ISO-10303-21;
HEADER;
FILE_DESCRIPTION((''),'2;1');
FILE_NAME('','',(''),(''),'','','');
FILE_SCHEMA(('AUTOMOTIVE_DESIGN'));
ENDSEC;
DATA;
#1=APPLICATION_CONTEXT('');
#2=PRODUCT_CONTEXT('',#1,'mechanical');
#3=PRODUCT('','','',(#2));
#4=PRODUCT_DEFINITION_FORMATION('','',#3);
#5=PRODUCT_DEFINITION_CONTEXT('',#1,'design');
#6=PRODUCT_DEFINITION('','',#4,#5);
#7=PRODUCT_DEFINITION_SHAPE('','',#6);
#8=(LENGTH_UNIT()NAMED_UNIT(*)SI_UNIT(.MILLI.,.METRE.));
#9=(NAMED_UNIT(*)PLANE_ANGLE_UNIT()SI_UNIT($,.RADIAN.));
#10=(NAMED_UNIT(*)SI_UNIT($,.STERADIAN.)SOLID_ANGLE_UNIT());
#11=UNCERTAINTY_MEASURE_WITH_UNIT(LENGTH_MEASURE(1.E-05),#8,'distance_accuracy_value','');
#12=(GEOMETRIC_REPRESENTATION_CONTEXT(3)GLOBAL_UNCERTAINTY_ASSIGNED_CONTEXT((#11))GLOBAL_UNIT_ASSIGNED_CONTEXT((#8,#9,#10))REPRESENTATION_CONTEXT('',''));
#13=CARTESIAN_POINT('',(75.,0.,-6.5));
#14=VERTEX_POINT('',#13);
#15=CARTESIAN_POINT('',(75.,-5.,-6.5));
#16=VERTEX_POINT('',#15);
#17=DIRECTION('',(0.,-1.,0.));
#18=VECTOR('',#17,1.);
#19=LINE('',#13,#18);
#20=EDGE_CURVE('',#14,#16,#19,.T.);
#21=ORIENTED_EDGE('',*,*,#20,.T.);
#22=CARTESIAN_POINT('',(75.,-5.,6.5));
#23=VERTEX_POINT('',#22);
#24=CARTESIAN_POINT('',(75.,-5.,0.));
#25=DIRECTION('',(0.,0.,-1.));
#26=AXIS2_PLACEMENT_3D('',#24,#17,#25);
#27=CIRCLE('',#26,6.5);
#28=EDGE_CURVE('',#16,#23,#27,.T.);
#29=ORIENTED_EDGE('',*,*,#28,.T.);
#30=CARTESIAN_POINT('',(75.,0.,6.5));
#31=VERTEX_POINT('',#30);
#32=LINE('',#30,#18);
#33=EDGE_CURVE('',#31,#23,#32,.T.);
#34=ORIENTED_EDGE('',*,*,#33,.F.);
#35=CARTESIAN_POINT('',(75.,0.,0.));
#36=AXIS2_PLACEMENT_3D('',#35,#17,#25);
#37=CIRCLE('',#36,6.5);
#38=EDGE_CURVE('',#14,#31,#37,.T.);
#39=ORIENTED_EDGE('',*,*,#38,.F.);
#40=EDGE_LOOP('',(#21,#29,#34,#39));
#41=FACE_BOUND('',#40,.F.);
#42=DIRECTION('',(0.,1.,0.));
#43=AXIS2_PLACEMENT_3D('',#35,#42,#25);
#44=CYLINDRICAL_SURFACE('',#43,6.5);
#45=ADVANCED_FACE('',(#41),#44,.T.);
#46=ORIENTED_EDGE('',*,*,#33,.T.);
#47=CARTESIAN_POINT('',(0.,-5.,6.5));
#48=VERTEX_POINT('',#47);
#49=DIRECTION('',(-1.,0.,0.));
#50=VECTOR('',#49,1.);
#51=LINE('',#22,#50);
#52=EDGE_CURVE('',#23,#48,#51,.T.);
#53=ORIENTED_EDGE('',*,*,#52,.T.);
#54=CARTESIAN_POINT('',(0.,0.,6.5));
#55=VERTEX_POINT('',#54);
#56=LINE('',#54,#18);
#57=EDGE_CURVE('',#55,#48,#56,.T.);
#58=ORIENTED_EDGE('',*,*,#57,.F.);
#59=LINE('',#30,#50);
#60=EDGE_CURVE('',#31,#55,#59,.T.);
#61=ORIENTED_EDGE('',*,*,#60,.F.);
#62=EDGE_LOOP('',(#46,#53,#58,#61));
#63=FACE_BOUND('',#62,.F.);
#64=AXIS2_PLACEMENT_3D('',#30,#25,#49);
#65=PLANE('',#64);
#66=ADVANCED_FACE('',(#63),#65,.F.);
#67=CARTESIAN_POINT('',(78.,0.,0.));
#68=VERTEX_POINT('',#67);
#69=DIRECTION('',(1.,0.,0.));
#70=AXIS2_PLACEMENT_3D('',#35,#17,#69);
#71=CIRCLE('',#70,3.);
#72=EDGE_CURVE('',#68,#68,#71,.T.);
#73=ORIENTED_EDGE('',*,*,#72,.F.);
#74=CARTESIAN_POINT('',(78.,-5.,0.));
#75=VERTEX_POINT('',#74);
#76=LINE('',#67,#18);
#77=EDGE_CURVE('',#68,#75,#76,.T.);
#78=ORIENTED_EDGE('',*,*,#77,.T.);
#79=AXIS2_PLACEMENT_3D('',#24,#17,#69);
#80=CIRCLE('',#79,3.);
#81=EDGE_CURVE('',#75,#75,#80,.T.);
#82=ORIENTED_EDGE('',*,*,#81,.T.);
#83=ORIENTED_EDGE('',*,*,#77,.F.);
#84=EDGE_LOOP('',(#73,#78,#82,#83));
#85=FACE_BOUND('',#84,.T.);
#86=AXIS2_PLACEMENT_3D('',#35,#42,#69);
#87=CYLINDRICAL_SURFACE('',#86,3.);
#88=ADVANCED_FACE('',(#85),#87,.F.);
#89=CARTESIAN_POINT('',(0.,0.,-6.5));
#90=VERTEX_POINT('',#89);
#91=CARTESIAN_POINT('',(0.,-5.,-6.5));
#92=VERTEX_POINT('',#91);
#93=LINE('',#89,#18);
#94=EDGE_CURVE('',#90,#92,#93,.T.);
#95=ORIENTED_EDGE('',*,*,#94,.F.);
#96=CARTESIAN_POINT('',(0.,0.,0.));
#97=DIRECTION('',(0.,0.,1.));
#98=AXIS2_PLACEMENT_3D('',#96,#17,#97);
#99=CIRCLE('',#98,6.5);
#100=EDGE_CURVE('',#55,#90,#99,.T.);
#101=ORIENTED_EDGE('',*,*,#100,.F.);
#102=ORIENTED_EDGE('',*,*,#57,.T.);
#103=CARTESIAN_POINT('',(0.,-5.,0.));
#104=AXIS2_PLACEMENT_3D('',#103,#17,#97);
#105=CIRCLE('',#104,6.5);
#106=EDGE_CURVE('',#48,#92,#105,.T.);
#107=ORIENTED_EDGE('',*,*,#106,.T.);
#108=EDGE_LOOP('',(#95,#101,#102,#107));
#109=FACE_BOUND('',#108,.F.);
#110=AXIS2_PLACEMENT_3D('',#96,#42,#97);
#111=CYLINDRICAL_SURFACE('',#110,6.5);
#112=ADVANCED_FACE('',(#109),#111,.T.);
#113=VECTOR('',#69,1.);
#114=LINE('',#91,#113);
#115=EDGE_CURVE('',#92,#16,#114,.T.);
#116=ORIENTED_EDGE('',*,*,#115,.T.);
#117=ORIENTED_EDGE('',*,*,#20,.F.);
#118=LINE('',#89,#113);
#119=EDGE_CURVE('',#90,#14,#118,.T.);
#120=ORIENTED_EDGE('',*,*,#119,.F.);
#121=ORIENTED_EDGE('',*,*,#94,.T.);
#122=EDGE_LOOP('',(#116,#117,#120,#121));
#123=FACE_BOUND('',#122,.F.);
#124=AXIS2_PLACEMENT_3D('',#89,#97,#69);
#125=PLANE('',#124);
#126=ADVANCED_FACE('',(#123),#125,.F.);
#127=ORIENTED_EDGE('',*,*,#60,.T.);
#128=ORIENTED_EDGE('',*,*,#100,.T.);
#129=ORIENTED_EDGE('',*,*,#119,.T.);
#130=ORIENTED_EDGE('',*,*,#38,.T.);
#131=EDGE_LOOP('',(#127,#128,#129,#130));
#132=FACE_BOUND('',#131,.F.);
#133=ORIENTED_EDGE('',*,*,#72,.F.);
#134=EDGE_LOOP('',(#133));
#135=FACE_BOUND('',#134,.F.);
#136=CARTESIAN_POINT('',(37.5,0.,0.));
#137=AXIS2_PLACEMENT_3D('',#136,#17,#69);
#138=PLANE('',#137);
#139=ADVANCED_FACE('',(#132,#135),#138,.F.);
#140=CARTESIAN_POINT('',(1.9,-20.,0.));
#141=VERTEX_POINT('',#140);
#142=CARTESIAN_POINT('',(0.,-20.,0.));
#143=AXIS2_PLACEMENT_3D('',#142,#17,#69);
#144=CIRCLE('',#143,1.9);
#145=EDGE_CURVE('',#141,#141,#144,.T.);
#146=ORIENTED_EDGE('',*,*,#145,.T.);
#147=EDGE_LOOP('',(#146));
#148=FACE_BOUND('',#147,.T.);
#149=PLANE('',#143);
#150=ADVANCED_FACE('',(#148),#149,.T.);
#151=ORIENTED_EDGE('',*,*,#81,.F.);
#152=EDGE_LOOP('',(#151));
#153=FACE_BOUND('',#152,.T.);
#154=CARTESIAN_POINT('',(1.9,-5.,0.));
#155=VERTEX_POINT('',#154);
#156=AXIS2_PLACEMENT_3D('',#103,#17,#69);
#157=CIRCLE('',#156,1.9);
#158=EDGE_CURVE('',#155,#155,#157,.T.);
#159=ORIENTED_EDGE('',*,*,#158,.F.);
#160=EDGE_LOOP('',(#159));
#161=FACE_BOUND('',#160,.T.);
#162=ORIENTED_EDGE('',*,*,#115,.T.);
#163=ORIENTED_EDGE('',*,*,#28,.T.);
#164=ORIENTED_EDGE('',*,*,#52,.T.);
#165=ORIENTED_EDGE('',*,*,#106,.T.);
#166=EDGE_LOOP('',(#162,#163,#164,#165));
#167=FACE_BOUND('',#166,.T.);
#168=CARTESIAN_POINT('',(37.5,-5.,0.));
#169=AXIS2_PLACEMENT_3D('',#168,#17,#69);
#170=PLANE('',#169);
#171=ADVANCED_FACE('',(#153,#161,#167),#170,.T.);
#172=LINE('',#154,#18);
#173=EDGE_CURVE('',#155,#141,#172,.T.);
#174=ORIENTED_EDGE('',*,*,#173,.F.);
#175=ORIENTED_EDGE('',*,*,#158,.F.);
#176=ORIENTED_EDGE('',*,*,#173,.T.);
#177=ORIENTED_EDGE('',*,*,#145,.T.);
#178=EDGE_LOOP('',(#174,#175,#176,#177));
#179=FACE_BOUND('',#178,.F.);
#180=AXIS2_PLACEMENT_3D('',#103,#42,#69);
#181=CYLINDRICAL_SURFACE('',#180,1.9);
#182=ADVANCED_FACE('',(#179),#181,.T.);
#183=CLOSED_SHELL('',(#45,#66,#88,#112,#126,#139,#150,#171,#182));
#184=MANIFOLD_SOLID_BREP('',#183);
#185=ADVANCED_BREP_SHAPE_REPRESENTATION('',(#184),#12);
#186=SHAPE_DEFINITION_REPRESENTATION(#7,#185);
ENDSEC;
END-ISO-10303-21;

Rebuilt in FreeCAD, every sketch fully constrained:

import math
import FreeCAD as App
import Part
import Sketcher
Q = App.Units.Quantity

doc = App.newDocument("Part")
params = doc.addObject("Spreadsheet::Sheet", "Params")
for row, (alias, value) in enumerate([
    ("sketch1_diameter", "6 mm"),
    ("sketch1_radius", "6.5 mm"),
    ("sketch1_width", "75 mm"),
    ("pad1_length", "5 mm"),
    ("sketch2_diameter", "3.8 mm"),
    ("pad2_length", "15 mm"),
], start=1):
    params.set(f"A{row}", alias)
    params.set(f"B{row}", "=" + value)
    params.setAlias(f"B{row}", alias)

body = doc.addObject("PartDesign::Body", "Body")

sketch1 = body.newObject("Sketcher::SketchObject", "Sketch")
sketch1.AttachmentSupport = (doc.getObject("XZ_Plane"), [""])
sketch1.MapMode = "FlatFace"
sketch1.addGeometry([
    Part.LineSegment(App.Vector(75, 6.5, 0), App.Vector(0, 6.5, 0)),
    Part.ArcOfCircle(Part.Circle(App.Vector(0, 0, 0), App.Vector(0, 0, 1), 6.5), math.radians(90), math.radians(270)),
    Part.LineSegment(App.Vector(0, -6.5, 0), App.Vector(75, -6.5, 0)),
    Part.ArcOfCircle(Part.Circle(App.Vector(75, 0, 0), App.Vector(0, 0, 1), 6.5), math.radians(-90), math.radians(90)),
    Part.Circle(App.Vector(75, 0, 0), App.Vector(0, 0, 1), 3),
], False)
sketch1.addConstraint([
    Sketcher.Constraint("Tangent", 0, 2, 1, 1),
    Sketcher.Constraint("Tangent", 1, 2, 2, 1),
    Sketcher.Constraint("Tangent", 2, 2, 3, 1),
    Sketcher.Constraint("Tangent", 3, 2, 0, 1),
    Sketcher.Constraint("Horizontal", 0),
    Sketcher.Constraint("Horizontal", 2),
    Sketcher.Constraint("Coincident", 1, 3, -1, 1),
    Sketcher.Constraint("Coincident", 4, 3, 3, 3),
    Sketcher.Constraint("Diameter", 4, Q("6 mm")),
    Sketcher.Constraint("Radius", 1, Q("6.5 mm")),
    Sketcher.Constraint("DistanceX", 0, 2, 0, 1, Q("75 mm")),
])
sketch1.setExpression("Constraints[8]", "Params.sketch1_diameter")
sketch1.setExpression("Constraints[9]", "Params.sketch1_radius")
sketch1.setExpression("Constraints[10]", "Params.sketch1_width")
pad1 = body.newObject("PartDesign::Pad", "Pad")
pad1.Profile = sketch1
pad1.setExpression("Length", "Params.pad1_length")

sketch2 = body.newObject("Sketcher::SketchObject", "Sketch001")
sketch2.AttachmentSupport = (doc.getObject("XZ_Plane"), [""])
sketch2.MapMode = "FlatFace"
sketch2.AttachmentOffset = App.Placement(App.Vector(0, 0, 5), App.Rotation())
sketch2.addGeometry(Part.Circle(App.Vector(0, 0, 0), App.Vector(0, 0, 1), 1.9), False)
sketch2.addConstraint([
    Sketcher.Constraint("Coincident", 0, 3, -1, 1),
    Sketcher.Constraint("Diameter", 0, Q("3.8 mm")),
])
sketch2.setExpression("Constraints[1]", "Params.sketch2_diameter")
pad2 = body.newObject("PartDesign::Pad", "Pad001")
pad2.Profile = sketch2
pad2.setExpression("Length", "Params.pad2_length")

doc.recompute()
